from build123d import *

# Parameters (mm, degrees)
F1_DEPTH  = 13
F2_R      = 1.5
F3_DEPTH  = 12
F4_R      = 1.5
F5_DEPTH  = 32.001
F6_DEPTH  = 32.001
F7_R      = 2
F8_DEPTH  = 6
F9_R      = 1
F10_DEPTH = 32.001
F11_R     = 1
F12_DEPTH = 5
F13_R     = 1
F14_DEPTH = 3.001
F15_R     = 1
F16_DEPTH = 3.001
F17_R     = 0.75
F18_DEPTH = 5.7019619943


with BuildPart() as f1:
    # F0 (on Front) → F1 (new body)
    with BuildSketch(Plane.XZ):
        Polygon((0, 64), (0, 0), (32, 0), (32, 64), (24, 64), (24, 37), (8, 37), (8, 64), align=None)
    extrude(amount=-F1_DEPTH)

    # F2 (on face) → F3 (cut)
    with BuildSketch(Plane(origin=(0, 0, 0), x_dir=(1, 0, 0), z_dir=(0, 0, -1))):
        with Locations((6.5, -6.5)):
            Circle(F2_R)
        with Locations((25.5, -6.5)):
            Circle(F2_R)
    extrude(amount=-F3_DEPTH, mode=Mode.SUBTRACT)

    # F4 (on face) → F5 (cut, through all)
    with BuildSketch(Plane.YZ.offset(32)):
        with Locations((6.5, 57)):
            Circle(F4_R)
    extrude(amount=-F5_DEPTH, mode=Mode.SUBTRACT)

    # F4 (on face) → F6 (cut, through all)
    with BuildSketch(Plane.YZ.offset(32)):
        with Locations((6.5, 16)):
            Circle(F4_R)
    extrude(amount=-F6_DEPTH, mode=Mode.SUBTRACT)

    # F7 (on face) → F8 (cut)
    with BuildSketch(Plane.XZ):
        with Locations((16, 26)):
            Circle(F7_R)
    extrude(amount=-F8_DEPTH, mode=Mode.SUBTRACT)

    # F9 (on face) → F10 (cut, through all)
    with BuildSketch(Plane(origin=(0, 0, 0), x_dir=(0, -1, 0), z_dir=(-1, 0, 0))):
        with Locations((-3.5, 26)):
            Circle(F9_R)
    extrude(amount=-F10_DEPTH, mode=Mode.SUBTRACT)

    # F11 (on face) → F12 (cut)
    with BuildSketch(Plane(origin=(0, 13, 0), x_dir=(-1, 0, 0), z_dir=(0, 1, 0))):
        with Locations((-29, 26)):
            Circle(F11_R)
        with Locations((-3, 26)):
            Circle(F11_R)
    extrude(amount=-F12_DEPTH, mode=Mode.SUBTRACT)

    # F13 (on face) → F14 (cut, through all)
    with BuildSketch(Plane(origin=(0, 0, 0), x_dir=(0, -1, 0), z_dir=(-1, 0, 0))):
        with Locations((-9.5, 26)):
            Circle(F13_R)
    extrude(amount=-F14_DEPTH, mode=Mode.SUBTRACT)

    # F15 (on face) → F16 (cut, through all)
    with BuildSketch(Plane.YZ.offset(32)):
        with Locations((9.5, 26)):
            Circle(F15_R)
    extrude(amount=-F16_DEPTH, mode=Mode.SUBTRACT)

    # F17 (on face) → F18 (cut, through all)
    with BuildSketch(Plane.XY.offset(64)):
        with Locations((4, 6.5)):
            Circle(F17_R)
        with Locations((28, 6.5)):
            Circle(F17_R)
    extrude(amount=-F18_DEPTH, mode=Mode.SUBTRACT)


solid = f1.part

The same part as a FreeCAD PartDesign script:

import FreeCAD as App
import Part
import Sketcher
from FreeCAD import Vector
Q = App.Units.Quantity

doc = App.newDocument("Part")
body = doc.addObject("PartDesign::Body", "Body")

# Sketch on XZ plane
sketch1 = doc.addObject("Sketcher::SketchObject", "Sketch")
body.addObject(sketch1)
sketch1.AttachmentSupport = (doc.XZ_Plane, [""])
sketch1.MapMode = "FlatFace"
sketch1.addGeometry(Part.LineSegment(Vector(0, 64, 0), Vector(0, 0, 0)), False)
sketch1.addGeometry(Part.LineSegment(Vector(0, 0, 0), Vector(32, 0, 0)), False)
sketch1.addGeometry(Part.LineSegment(Vector(32, 0, 0), Vector(32, 64, 0)), False)
sketch1.addGeometry(Part.LineSegment(Vector(32, 64, 0), Vector(24, 64, 0)), False)
sketch1.addGeometry(Part.LineSegment(Vector(24, 64, 0), Vector(24, 37, 0)), False)
sketch1.addGeometry(Part.LineSegment(Vector(24, 37, 0), Vector(8, 37, 0)), False)
sketch1.addGeometry(Part.LineSegment(Vector(8, 37, 0), Vector(8, 64, 0)), False)
sketch1.addGeometry(Part.LineSegment(Vector(8, 64, 0), Vector(0, 64, 0)), False)
sketch1.addConstraint(Sketcher.Constraint("Coincident", 0, 2, 1, 1))
sketch1.addConstraint(Sketcher.Constraint("Coincident", 1, 2, 2, 1))
sketch1.addConstraint(Sketcher.Constraint("Coincident", 2, 2, 3, 1))
sketch1.addConstraint(Sketcher.Constraint("Coincident", 3, 2, 4, 1))
sketch1.addConstraint(Sketcher.Constraint("Coincident", 4, 2, 5, 1))
sketch1.addConstraint(Sketcher.Constraint("Coincident", 5, 2, 6, 1))
sketch1.addConstraint(Sketcher.Constraint("Coincident", 6, 2, 7, 1))
sketch1.addConstraint(Sketcher.Constraint("Coincident", 7, 2, 0, 1))
sketch1.addConstraint(Sketcher.Constraint("Vertical", 0))
sketch1.addConstraint(Sketcher.Constraint("Horizontal", 1))
sketch1.addConstraint(Sketcher.Constraint("Vertical", 2))
sketch1.addConstraint(Sketcher.Constraint("Horizontal", 3))
sketch1.addConstraint(Sketcher.Constraint("Vertical", 4))
sketch1.addConstraint(Sketcher.Constraint("Horizontal", 5))
sketch1.addConstraint(Sketcher.Constraint("Vertical", 6))
sketch1.addConstraint(Sketcher.Constraint("Horizontal", 7))
sketch1.addConstraint(Sketcher.Constraint("Coincident", 0, 2, -1, 1))
sketch1.addConstraint(Sketcher.Constraint("Horizontal", 3, 2, 6, 2))
sketch1.addConstraint(Sketcher.Constraint("Equal", 3, 7))
sketch1.addConstraint(Sketcher.Constraint("DistanceX", 1, 1, 1, 2, Q("32 mm")))
sketch1.addConstraint(Sketcher.Constraint("DistanceX", 3, 2, 3, 1, Q("8 mm")))
sketch1.addConstraint(Sketcher.Constraint("DistanceY", 0, 2, 0, 1, Q("64 mm")))
sketch1.addConstraint(Sketcher.Constraint("DistanceY", 4, 2, 4, 1, Q("27 mm")))
pad1 = doc.addObject("PartDesign::Pad", "Pad")
body.addObject(pad1)
pad1.Profile = sketch1
pad1.Length = 13
pad1.Reversed = True

# Sketch on XY plane
sketch2 = doc.addObject("Sketcher::SketchObject", "Sketch001")
body.addObject(sketch2)
sketch2.AttachmentSupport = (doc.XY_Plane, [""])
sketch2.MapMode = "FlatFace"
sketch2.addGeometry(Part.Circle(Vector(6.5, 6.5, 0), Vector(0, 0, 1), 1.5), False)
sketch2.addGeometry(Part.Circle(Vector(25.5, 6.5, 0), Vector(0, 0, 1), 1.5), False)
sketch2.addConstraint(Sketcher.Constraint("Equal", 0, 1))
sketch2.addConstraint(Sketcher.Constraint("Horizontal", 0, 3, 1, 3))
sketch2.addConstraint(Sketcher.Constraint("Diameter", 0, Q("3 mm")))
sketch2.addConstraint(Sketcher.Constraint("DistanceX", 0, 3, 1, 3, Q("19 mm")))
sketch2.addConstraint(Sketcher.Constraint("DistanceX", -1, 1, 0, 3, Q("6.5 mm")))
sketch2.addConstraint(Sketcher.Constraint("DistanceY", -1, 1, 0, 3, Q("6.5 mm")))
pocket1 = doc.addObject("PartDesign::Pocket", "Pocket")
body.addObject(pocket1)
pocket1.Profile = sketch2
pocket1.Length = 12
pocket1.Reversed = True

# Sketch on YZ plane
sketch3 = doc.addObject("Sketcher::SketchObject", "Sketch002")
body.addObject(sketch3)
sketch3.AttachmentSupport = (doc.YZ_Plane, [""])
sketch3.MapMode = "FlatFace"
sketch3.AttachmentOffset = App.Placement(Vector(0, 0, 32), App.Rotation())
sketch3.addGeometry(Part.Circle(Vector(6.5, 57, 0), Vector(0, 0, 1), 1.5), False)
sketch3.addConstraint(Sketcher.Constraint("Diameter", 0, Q("3 mm")))
sketch3.addConstraint(Sketcher.Constraint("DistanceY", -1, 1, 0, 3, Q("57 mm")))
sketch3.addConstraint(Sketcher.Constraint("DistanceX", -1, 1, 0, 3, Q("6.5 mm")))
pocket2 = doc.addObject("PartDesign::Pocket", "Pocket001")
body.addObject(pocket2)
pocket2.Profile = sketch3
pocket2.Type = "ThroughAll"

# Sketch on YZ plane
sketch4 = doc.addObject("Sketcher::SketchObject", "Sketch003")
body.addObject(sketch4)
sketch4.AttachmentSupport = (doc.YZ_Plane, [""])
sketch4.MapMode = "FlatFace"
sketch4.AttachmentOffset = App.Placement(Vector(0, 0, 32), App.Rotation())
sketch4.addGeometry(Part.Circle(Vector(6.5, 16, 0), Vector(0, 0, 1), 1.5), False)
sketch4.addConstraint(Sketcher.Constraint("Diameter", 0, Q("3 mm")))
sketch4.addConstraint(Sketcher.Constraint("DistanceY", -1, 1, 0, 3, Q("16 mm")))
sketch4.addConstraint(Sketcher.Constraint("DistanceX", -1, 1, 0, 3, Q("6.5 mm")))
pocket3 = doc.addObject("PartDesign::Pocket", "Pocket002")
body.addObject(pocket3)
pocket3.Profile = sketch4
pocket3.Type = "ThroughAll"

# Sketch on XZ plane
sketch5 = doc.addObject("Sketcher::SketchObject", "Sketch004")
body.addObject(sketch5)
sketch5.AttachmentSupport = (doc.XZ_Plane, [""])
sketch5.MapMode = "FlatFace"
sketch5.addGeometry(Part.Circle(Vector(16, 26, 0), Vector(0, 0, 1), 2), False)
sketch5.addConstraint(Sketcher.Constraint("Diameter", 0, Q("4 mm")))
sketch5.addConstraint(Sketcher.Constraint("DistanceX", -1, 1, 0, 3, Q("16 mm")))
sketch5.addConstraint(Sketcher.Constraint("DistanceY", -1, 1, 0, 3, Q("26 mm")))
pocket4 = doc.addObject("PartDesign::Pocket", "Pocket003")
body.addObject(pocket4)
pocket4.Profile = sketch5
pocket4.Length = 6

# Sketch on YZ plane
sketch6 = doc.addObject("Sketcher::SketchObject", "Sketch005")
body.addObject(sketch6)
sketch6.AttachmentSupport = (doc.YZ_Plane, [""])
sketch6.MapMode = "FlatFace"
sketch6.addGeometry(Part.Circle(Vector(3.5, 26, 0), Vector(0, 0, 1), 1), False)
sketch6.addConstraint(Sketcher.Constraint("Diameter", 0, Q("2 mm")))
sketch6.addConstraint(Sketcher.Constraint("DistanceY", -1, 1, 0, 3, Q("26 mm")))
sketch6.addConstraint(Sketcher.Constraint("DistanceX", -1, 1, 0, 3, Q("3.5 mm")))
pocket5 = doc.addObject("PartDesign::Pocket", "Pocket004")
body.addObject(pocket5)
pocket5.Profile = sketch6
pocket5.Type = "ThroughAll"
pocket5.Reversed = True

# Sketch on XZ plane
sketch7 = doc.addObject("Sketcher::SketchObject", "Sketch006")
body.addObject(sketch7)
sketch7.AttachmentSupport = (doc.XZ_Plane, [""])
sketch7.MapMode = "FlatFace"
sketch7.AttachmentOffset = App.Placement(Vector(0, 0, -13), App.Rotation())
sketch7.addGeometry(Part.Circle(Vector(29, 26, 0), Vector(0, 0, 1), 1), False)
sketch7.addGeometry(Part.Circle(Vector(3, 26, 0), Vector(0, 0, 1), 1), False)
sketch7.addConstraint(Sketcher.Constraint("Equal", 0, 1))
sketch7.addConstraint(Sketcher.Constraint("Horizontal", 0, 3, 1, 3))
sketch7.addConstraint(Sketcher.Constraint("Diameter", 0, Q("2 mm")))
sketch7.addConstraint(Sketcher.Constraint("DistanceX", -1, 1, 0, 3, Q("29 mm")))
sketch7.addConstraint(Sketcher.Constraint("DistanceY", -1, 1, 0, 3, Q("26 mm")))
sketch7.addConstraint(Sketcher.Constraint("DistanceX", -1, 1, 1, 3, Q("3 mm")))
pocket6 = doc.addObject("PartDesign::Pocket", "Pocket005")
body.addObject(pocket6)
pocket6.Profile = sketch7
pocket6.Length = 5
pocket6.Reversed = True

# Sketch on YZ plane
sketch8 = doc.addObject("Sketcher::SketchObject", "Sketch007")
body.addObject(sketch8)
sketch8.AttachmentSupport = (doc.YZ_Plane, [""])
sketch8.MapMode = "FlatFace"
sketch8.addGeometry(Part.Circle(Vector(9.5, 26, 0), Vector(0, 0, 1), 1), False)
sketch8.addConstraint(Sketcher.Constraint("Diameter", 0, Q("2 mm")))
sketch8.addConstraint(Sketcher.Constraint("DistanceY", -1, 1, 0, 3, Q("26 mm")))
sketch8.addConstraint(Sketcher.Constraint("DistanceX", -1, 1, 0, 3, Q("9.5 mm")))
pocket7 = doc.addObject("PartDesign::Pocket", "Pocket006")
body.addObject(pocket7)
pocket7.Profile = sketch8
pocket7.Length = 3.001
pocket7.Reversed = True

# Sketch on YZ plane
sketch9 = doc.addObject("Sketcher::SketchObject", "Sketch008")
body.addObject(sketch9)
sketch9.AttachmentSupport = (doc.YZ_Plane, [""])
sketch9.MapMode = "FlatFace"
sketch9.AttachmentOffset = App.Placement(Vector(0, 0, 32), App.Rotation())
sketch9.addGeometry(Part.Circle(Vector(9.5, 26, 0), Vector(0, 0, 1), 1), False)
sketch9.addConstraint(Sketcher.Constraint("Diameter", 0, Q("2 mm")))
sketch9.addConstraint(Sketcher.Constraint("DistanceY", -1, 1, 0, 3, Q("26 mm")))
sketch9.addConstraint(Sketcher.Constraint("DistanceX", -1, 1, 0, 3, Q("9.5 mm")))
pocket8 = doc.addObject("PartDesign::Pocket", "Pocket007")
body.addObject(pocket8)
pocket8.Profile = sketch9
pocket8.Length = 3.001

# Sketch on XY plane
sketch10 = doc.addObject("Sketcher::SketchObject", "Sketch009")
body.addObject(sketch10)
sketch10.AttachmentSupport = (doc.XY_Plane, [""])
sketch10.MapMode = "FlatFace"
sketch10.AttachmentOffset = App.Placement(Vector(0, 0, 64), App.Rotation())
sketch10.addGeometry(Part.Circle(Vector(4, 6.5, 0), Vector(0, 0, 1), 0.75), False)
sketch10.addGeometry(Part.Circle(Vector(28, 6.5, 0), Vector(0, 0, 1), 0.75), False)
sketch10.addConstraint(Sketcher.Constraint("Equal", 0, 1))
sketch10.addConstraint(Sketcher.Constraint("Horizontal", 0, 3, 1, 3))
sketch10.addConstraint(Sketcher.Constraint("Diameter", 0, Q("1.5 mm")))
sketch10.addConstraint(Sketcher.Constraint("DistanceX", -1, 1, 0, 3, Q("4 mm")))
sketch10.addConstraint(Sketcher.Constraint("DistanceX", -1, 1, 1, 3, Q("28 mm")))
sketch10.addConstraint(Sketcher.Constraint("DistanceY", -1, 1, 0, 3, Q("6.5 mm")))
pocket9 = doc.addObject("PartDesign::Pocket", "Pocket008")
body.addObject(pocket9)
pocket9.Profile = sketch10
pocket9.Length = 5.701962

doc.recompute()
